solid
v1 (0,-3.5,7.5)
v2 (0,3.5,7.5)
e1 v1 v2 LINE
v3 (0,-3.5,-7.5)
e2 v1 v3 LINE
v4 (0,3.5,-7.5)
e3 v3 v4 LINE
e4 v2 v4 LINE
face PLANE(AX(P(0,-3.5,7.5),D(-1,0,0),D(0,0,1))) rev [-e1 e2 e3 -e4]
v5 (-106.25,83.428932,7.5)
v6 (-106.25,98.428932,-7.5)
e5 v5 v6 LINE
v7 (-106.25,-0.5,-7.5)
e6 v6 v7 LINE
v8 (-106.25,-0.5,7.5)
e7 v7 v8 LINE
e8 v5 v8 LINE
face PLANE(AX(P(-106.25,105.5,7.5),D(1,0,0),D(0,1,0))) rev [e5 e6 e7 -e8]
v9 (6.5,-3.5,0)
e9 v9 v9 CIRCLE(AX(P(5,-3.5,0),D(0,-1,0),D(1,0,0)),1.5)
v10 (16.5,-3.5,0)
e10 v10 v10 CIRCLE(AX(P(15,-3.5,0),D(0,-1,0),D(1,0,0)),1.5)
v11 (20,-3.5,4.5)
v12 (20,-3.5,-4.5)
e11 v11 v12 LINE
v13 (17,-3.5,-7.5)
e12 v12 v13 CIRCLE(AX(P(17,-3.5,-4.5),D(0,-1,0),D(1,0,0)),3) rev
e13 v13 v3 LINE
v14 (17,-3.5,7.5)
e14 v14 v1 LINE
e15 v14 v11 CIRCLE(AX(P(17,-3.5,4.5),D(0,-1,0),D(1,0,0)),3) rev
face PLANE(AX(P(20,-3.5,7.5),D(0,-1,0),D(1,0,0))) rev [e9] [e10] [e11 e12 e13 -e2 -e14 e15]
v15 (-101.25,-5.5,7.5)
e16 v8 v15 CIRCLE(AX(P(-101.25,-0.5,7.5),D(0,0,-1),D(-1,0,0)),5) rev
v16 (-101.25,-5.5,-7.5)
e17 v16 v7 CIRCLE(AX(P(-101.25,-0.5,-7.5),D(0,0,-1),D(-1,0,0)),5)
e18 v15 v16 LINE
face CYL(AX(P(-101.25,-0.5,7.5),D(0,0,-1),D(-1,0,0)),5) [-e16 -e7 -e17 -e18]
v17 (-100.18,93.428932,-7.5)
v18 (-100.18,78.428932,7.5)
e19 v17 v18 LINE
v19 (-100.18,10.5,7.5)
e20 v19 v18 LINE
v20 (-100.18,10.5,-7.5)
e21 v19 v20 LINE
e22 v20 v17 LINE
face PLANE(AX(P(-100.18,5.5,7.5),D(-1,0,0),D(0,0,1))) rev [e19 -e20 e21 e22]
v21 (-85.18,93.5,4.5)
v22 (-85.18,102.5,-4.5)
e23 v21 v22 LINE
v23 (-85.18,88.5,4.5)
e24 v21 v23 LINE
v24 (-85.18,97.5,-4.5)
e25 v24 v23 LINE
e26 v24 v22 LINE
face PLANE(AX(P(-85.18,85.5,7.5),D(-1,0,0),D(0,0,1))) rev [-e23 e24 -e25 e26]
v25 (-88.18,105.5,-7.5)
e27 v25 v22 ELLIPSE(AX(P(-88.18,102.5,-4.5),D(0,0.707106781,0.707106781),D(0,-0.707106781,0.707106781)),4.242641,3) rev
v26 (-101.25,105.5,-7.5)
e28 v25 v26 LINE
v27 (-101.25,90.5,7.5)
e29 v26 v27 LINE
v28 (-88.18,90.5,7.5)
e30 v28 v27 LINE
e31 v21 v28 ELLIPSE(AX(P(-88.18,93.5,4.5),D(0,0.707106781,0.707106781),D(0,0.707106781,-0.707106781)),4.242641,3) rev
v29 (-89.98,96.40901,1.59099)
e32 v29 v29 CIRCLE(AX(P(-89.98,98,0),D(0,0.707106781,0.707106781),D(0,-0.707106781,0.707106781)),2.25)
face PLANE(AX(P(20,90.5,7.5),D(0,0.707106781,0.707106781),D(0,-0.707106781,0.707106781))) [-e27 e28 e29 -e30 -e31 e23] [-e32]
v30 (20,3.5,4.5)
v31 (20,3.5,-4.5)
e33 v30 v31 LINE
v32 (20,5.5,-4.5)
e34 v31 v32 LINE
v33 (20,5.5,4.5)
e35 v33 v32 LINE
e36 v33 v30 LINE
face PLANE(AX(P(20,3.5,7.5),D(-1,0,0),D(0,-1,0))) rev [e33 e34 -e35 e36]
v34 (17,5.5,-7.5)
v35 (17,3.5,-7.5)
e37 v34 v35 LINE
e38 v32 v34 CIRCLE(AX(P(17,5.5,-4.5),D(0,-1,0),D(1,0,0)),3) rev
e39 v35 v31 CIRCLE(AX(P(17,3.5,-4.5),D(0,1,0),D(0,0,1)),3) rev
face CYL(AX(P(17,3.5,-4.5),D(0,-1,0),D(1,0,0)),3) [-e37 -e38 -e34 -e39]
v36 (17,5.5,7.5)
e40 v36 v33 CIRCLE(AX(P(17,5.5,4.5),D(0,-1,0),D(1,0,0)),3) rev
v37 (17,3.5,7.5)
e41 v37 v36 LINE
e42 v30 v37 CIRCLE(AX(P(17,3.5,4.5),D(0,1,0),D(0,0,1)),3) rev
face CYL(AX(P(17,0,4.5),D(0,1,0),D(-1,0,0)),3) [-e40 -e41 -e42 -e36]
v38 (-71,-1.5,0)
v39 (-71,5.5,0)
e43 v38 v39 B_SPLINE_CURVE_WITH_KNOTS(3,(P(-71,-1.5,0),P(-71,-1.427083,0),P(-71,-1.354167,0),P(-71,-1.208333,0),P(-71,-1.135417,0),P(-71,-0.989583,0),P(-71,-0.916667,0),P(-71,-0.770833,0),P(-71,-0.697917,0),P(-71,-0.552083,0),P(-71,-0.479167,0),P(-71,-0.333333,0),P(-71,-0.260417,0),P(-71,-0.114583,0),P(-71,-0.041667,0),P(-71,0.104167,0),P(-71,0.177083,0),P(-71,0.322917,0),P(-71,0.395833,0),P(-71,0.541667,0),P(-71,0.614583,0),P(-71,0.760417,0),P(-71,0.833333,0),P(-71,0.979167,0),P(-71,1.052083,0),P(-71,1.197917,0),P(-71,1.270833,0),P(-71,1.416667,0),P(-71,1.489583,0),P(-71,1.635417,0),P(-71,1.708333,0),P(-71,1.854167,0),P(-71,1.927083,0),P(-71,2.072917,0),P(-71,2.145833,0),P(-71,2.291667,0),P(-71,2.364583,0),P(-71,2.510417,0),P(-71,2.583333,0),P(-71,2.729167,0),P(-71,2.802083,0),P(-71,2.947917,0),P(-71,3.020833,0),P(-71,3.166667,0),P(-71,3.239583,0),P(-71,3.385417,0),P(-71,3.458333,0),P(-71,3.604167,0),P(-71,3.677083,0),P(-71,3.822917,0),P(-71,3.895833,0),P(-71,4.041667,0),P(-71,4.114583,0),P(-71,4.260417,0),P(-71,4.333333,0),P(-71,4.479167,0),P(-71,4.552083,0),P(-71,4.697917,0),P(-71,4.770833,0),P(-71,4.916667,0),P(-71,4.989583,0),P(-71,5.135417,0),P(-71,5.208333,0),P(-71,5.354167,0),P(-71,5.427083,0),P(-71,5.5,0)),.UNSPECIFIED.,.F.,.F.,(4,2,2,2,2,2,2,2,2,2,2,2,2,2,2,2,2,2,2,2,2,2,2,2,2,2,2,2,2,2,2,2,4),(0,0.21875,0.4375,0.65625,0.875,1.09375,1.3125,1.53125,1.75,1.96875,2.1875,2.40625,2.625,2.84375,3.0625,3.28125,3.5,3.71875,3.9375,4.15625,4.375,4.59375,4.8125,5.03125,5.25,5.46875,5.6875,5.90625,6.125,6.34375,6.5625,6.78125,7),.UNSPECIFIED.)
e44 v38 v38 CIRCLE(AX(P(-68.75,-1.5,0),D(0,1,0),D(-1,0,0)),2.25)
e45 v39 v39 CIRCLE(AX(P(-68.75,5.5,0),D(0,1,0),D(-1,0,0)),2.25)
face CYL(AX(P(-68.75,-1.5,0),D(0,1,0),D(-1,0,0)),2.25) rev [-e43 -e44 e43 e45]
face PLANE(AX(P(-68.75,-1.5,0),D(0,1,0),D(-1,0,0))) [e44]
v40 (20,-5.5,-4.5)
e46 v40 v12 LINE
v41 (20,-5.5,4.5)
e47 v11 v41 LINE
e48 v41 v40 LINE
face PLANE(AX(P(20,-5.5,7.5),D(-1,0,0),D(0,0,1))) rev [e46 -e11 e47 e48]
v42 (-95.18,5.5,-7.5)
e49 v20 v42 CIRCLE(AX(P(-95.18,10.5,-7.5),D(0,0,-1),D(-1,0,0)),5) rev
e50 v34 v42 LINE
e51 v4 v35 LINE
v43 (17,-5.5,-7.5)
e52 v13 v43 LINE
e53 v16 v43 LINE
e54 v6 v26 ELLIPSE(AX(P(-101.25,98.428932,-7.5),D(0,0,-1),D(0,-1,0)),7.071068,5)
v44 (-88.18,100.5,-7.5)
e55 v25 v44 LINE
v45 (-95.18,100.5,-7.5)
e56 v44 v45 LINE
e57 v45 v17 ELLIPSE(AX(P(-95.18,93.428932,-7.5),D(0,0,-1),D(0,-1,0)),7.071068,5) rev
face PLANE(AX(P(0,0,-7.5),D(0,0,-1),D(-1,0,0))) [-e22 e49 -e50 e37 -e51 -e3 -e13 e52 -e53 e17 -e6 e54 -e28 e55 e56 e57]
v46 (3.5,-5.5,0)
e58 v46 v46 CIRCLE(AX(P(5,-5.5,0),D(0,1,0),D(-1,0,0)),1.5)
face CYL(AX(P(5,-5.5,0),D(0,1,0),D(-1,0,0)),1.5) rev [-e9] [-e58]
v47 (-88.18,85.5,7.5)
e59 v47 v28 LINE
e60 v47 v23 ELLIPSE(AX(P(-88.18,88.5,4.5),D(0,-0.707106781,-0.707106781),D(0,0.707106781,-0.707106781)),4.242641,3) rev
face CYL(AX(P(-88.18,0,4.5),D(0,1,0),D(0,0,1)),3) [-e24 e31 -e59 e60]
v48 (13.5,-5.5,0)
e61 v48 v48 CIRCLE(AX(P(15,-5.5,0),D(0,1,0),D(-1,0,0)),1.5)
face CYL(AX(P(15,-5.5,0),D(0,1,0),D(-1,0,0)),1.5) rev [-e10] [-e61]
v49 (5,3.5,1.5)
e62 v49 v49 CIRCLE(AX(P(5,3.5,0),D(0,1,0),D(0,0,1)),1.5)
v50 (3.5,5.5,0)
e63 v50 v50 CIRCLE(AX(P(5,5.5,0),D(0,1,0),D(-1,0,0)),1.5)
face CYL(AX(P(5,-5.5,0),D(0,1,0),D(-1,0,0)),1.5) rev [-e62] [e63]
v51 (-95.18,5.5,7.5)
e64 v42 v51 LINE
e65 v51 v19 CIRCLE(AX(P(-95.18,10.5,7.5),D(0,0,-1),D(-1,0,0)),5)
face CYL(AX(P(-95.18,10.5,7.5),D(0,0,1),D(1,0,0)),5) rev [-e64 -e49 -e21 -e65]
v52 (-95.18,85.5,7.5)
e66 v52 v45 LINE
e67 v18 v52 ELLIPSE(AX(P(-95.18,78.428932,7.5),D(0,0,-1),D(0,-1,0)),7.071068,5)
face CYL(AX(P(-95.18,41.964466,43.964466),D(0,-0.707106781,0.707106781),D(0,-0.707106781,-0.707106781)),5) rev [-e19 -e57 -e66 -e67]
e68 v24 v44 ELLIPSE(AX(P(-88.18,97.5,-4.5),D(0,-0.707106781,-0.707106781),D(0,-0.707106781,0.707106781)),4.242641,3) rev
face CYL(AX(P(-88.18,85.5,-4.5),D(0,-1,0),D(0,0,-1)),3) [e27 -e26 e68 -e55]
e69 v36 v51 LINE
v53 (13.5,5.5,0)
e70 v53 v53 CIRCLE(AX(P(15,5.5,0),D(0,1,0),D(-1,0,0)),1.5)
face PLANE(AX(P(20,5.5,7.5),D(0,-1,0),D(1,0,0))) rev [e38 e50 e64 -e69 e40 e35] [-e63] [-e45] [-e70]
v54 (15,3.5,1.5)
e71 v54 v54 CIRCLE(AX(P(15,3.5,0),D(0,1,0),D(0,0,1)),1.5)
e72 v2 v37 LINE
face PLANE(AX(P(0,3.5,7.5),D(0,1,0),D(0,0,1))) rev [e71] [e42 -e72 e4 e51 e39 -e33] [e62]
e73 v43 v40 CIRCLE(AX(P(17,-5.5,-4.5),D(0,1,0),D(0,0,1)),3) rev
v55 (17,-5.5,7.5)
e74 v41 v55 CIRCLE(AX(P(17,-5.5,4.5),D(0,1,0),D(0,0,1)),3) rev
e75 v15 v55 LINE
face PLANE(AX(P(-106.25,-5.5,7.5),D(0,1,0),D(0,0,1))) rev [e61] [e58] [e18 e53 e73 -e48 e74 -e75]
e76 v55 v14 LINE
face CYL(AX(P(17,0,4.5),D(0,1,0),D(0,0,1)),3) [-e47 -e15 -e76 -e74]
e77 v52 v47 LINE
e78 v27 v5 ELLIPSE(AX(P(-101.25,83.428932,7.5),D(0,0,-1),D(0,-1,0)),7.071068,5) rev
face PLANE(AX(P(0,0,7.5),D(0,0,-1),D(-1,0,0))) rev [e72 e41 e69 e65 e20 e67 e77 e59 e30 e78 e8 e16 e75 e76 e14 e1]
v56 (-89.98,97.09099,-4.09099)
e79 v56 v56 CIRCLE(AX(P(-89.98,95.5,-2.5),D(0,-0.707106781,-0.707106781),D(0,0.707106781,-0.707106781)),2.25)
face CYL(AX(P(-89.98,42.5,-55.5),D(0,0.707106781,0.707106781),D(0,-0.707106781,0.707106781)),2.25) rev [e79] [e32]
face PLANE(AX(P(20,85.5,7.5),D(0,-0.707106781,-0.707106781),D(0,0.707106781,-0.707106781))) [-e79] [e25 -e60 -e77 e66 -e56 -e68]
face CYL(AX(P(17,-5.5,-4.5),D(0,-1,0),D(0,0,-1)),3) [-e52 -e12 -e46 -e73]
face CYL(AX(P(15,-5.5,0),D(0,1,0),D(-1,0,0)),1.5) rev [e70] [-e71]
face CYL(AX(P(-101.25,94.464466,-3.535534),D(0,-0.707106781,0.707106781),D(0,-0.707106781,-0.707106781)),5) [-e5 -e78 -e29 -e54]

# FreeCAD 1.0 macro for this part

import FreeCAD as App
import Part
import Sketcher


def edges_at(feature, points):
    """Names of the edges that pass closest to the given points."""
    edges = feature.Shape.Edges
    near = lambda p: min(range(len(edges)), key=lambda i: edges[i].distToShape(Part.Vertex(*p))[0])
    return sorted({f"Edge{near(p) + 1}" for p in points})

doc = App.newDocument("Part")
body = doc.addObject("PartDesign::Body", "Body")

sketch1 = body.newObject("Sketcher::SketchObject", "Sketch")
sketch1.AttachmentSupport = (doc.getObject("XY_Plane"), [""])
sketch1.MapMode = "FlatFace"
sketch1.addGeometry(Part.LineSegment(App.Vector(0, -3.5, 0), App.Vector(0, 3.5, 0)), False)
sketch1.addGeometry(Part.LineSegment(App.Vector(0, 3.5, 0), App.Vector(20, 3.5, 0)), False)
sketch1.addGeometry(Part.LineSegment(App.Vector(20, 3.5, 0), App.Vector(20, 5.5, 0)), False)
sketch1.addGeometry(Part.LineSegment(App.Vector(20, 5.5, 0), App.Vector(-100.2, 5.5, 0)), False)
sketch1.addGeometry(Part.LineSegment(App.Vector(-100.2, 5.5, 0), App.Vector(-100.2, 85.5, 0)), False)
sketch1.addGeometry(Part.LineSegment(App.Vector(-100.2, 85.5, 0), App.Vector(-85.2, 85.5, 0)), False)
sketch1.addGeometry(Part.LineSegment(App.Vector(-85.2, 85.5, 0), App.Vector(-85.2, 105.5, 0)), False)
sketch1.addGeometry(Part.LineSegment(App.Vector(-85.2, 105.5, 0), App.Vector(-106.2, 105.5, 0)), False)
sketch1.addGeometry(Part.LineSegment(App.Vector(-106.2, 105.5, 0), App.Vector(-106.2, -5.5, 0)), False)
sketch1.addGeometry(Part.LineSegment(App.Vector(-106.2, -5.5, 0), App.Vector(20, -5.5, 0)), False)
sketch1.addGeometry(Part.LineSegment(App.Vector(20, -5.5, 0), App.Vector(20, -3.5, 0)), False)
sketch1.addGeometry(Part.LineSegment(App.Vector(20, -3.5, 0), App.Vector(0, -3.5, 0)), False)
sketch1.addConstraint(Sketcher.Constraint("Coincident", 0, 2, 1, 1))
sketch1.addConstraint(Sketcher.Constraint("Coincident", 1, 2, 2, 1))
sketch1.addConstraint(Sketcher.Constraint("Coincident", 2, 2, 3, 1))
sketch1.addConstraint(Sketcher.Constraint("Coincident", 3, 2, 4, 1))
sketch1.addConstraint(Sketcher.Constraint("Coincident", 4, 2, 5, 1))
sketch1.addConstraint(Sketcher.Constraint("Coincident", 5, 2, 6, 1))
sketch1.addConstraint(Sketcher.Constraint("Coincident", 6, 2, 7, 1))
sketch1.addConstraint(Sketcher.Constraint("Coincident", 7, 2, 8, 1))
sketch1.addConstraint(Sketcher.Constraint("Coincident", 8, 2, 9, 1))
sketch1.addConstraint(Sketcher.Constraint("Coincident", 9, 2, 10, 1))
sketch1.addConstraint(Sketcher.Constraint("Coincident", 10, 2, 11, 1))
sketch1.addConstraint(Sketcher.Constraint("Coincident", 11, 2, 0, 1))
sketch1.addConstraint(Sketcher.Constraint("Vertical", 0))
sketch1.addConstraint(Sketcher.Constraint("Horizontal", 1))
sketch1.addConstraint(Sketcher.Constraint("Vertical", 2))
sketch1.addConstraint(Sketcher.Constraint("Horizontal", 3))
sketch1.addConstraint(Sketcher.Constraint("Vertical", 4))
sketch1.addConstraint(Sketcher.Constraint("Horizontal", 5))
sketch1.addConstraint(Sketcher.Constraint("Vertical", 6))
sketch1.addConstraint(Sketcher.Constraint("Horizontal", 7))
sketch1.addConstraint(Sketcher.Constraint("Vertical", 8))
sketch1.addConstraint(Sketcher.Constraint("Horizontal", 9))
sketch1.addConstraint(Sketcher.Constraint("Vertical", 10))
sketch1.addConstraint(Sketcher.Constraint("Horizontal", 11))
sketch1.addConstraint(Sketcher.Constraint("Symmetric", 0, 2, 11, 2, -1, 1))
sketch1.addConstraint(Sketcher.Constraint("Symmetric", 2, 2, 9, 2, -1))
sketch1.addConstraint(Sketcher.Constraint("Equal", 11, 6))
sketch1.addConstraint(Sketcher.Constraint("DistanceX", 1, 1, 1, 2, 20.0))
sketch1.addConstraint(Sketcher.Constraint("DistanceX", 5, 1, 5, 2, 15.0))
sketch1.addConstraint(Sketcher.Constraint("DistanceY", 0, 1, 0, 2, 7.0))
sketch1.addConstraint(Sketcher.Constraint("DistanceY", 2, 1, 2, 2, 2.0))
sketch1.addConstraint(Sketcher.Constraint("DistanceY", 4, 1, 4, 2, 80.0))
sketch1.addConstraint(Sketcher.Constraint("DistanceX", 3, 2, 3, 1, 120.18))
sketch1.addConstraint(Sketcher.Constraint("DistanceX", 7, 2, 7, 1, 21.07))
pad1 = body.newObject("PartDesign::Pad", "Pad")
pad1.Profile = sketch1
pad1.Length = 15
pad1.Midplane = True

sketch2 = body.newObject("Sketcher::SketchObject", "Sketch001")
sketch2.AttachmentSupport = (doc.getObject("XZ_Plane"), [""])
sketch2.MapMode = "FlatFace"
sketch2.AttachmentOffset = App.Placement(App.Vector(0, 0, -5.5), App.Rotation())
sketch2.addGeometry(Part.Circle(App.Vector(15, 0, 0), App.Vector(0, 0, 1), 1.5), False)
sketch2.addGeometry(Part.Circle(App.Vector(5, 0, 0), App.Vector(0, 0, 1), 1.5), False)
sketch2.addConstraint(Sketcher.Constraint("Equal", 0, 1))
sketch2.addConstraint(Sketcher.Constraint("PointOnObject", 0, 3, -1))
sketch2.addConstraint(Sketcher.Constraint("PointOnObject", 1, 3, -1))
sketch2.addConstraint(Sketcher.Constraint("Diameter", 0, 3.0))
sketch2.addConstraint(Sketcher.Constraint("DistanceX", -1, 1, 0, 3, 15.0))
sketch2.addConstraint(Sketcher.Constraint("DistanceX", -1, 1, 1, 3, 5.0))
pocket1 = body.newObject("PartDesign::Pocket", "Pocket")
pocket1.Profile = sketch2
pocket1.Type = "ThroughAll"
pocket1.Reversed = True
doc.recompute()

fillet = body.newObject("PartDesign::Fillet", "Fillet")
fillet.Base = (pocket1, edges_at(pocket1, [
    (20, -4.5, -7.5),
    (20, 4.5, -7.5),
    (20, 4.5, 7.5),
    (20, -4.5, 7.5),
]))
fillet.Radius = 3
doc.recompute()

fillet2 = body.newObject("PartDesign::Fillet", "Fillet001")
fillet2.Base = (fillet, edges_at(fillet, [(-85.18, 95.5, -7.5), (-85.18, 95.5, 7.5)]))
fillet2.Radius = 3

sketch3 = body.newObject("Sketcher::SketchObject", "Sketch002")
sketch3.AttachmentSupport = (doc.getObject("YZ_Plane"), [""])
sketch3.MapMode = "FlatFace"
sketch3.AttachmentOffset = App.Placement(App.Vector(0, 0, -100.18), App.Rotation())
sketch3.addGeometry(Part.LineSegment(App.Vector(90, 8, 0), App.Vector(106, -8, 0)), False)
sketch3.addGeometry(Part.LineSegment(App.Vector(106, -8, 0), App.Vector(106, 8, 0)), False)
sketch3.addGeometry(Part.LineSegment(App.Vector(106, 8, 0), App.Vector(90, 8, 0)), False)
sketch3.addGeometry(Part.LineSegment(App.Vector(100, -8, 0), App.Vector(86, 8, 0)), False)
sketch3.addGeometry(Part.LineSegment(App.Vector(86, 8, 0), App.Vector(86, -8, 0)), False)
sketch3.addGeometry(Part.LineSegment(App.Vector(86, -8, 0), App.Vector(100, -8, 0)), False)
sketch3.addConstraint(Sketcher.Constraint("Coincident", 0, 2, 1, 1))
sketch3.addConstraint(Sketcher.Constraint("Coincident", 1, 2, 2, 1))
sketch3.addConstraint(Sketcher.Constraint("Coincident", 2, 2, 0, 1))
sketch3.addConstraint(Sketcher.Constraint("Coincident", 3, 2, 4, 1))
sketch3.addConstraint(Sketcher.Constraint("Coincident", 4, 2, 5, 1))
sketch3.addConstraint(Sketcher.Constraint("Coincident", 5, 2, 3, 1))
sketch3.addConstraint(Sketcher.Constraint("Vertical", 1))
sketch3.addConstraint(Sketcher.Constraint("Horizontal", 2))
sketch3.addConstraint(Sketcher.Constraint("Vertical", 4))
sketch3.addConstraint(Sketcher.Constraint("Horizontal", 5))
sketch3.addConstraint(Sketcher.Constraint("Parallel", 0, 3))
sketch3.addConstraint(Sketcher.Constraint("Horizontal", 2, 2, 3, 2))
sketch3.addConstraint(Sketcher.Constraint("Horizontal", 0, 2, 4, 2))
sketch3.addConstraint(Sketcher.Constraint("Equal", 5, 1))
sketch3.addConstraint(Sketcher.Constraint("DistanceX", 2, 2, 2, 1, 15.0))
sketch3.addConstraint(Sketcher.Constraint("DistanceX", 3, 2, 2, 2, 5.0))
sketch3.addConstraint(Sketcher.Constraint("DistanceX", -1, 1, 0, 2, 105.5))
sketch3.addConstraint(Sketcher.Constraint("DistanceY", 0, 2, -1, 1, 7.5))
pocket2 = body.newObject("PartDesign::Pocket", "Pocket001")
pocket2.Profile = sketch3
pocket2.Type = "ThroughAll"
pocket2.Reversed = True

sketch4 = body.newObject("Sketcher::SketchObject", "Sketch003")
sketch4.Placement = App.Placement(App.Vector(0, 49, 49), App.Rotation(App.Vector(1, 0, 0), App.Vector(0, 0.707106781, -0.707106781), App.Vector(0, 0.707106781, 0.707106781), "ZXY"))
sketch4.addGeometry(Part.Circle(App.Vector(-90, 69.3, 0), App.Vector(0, 0, 1), 2.2), False)
sketch4.addConstraint(Sketcher.Constraint("Diameter", 0, 4.5))
sketch4.addConstraint(Sketcher.Constraint("DistanceX", 0, 3, -1, 1, 89.98))
sketch4.addConstraint(Sketcher.Constraint("DistanceY", -1, 1, 0, 3, 69.296465))
pocket3 = body.newObject("PartDesign::Pocket", "Pocket002")
pocket3.Profile = sketch4
pocket3.Type = "ThroughAll"

sketch5 = body.newObject("Sketcher::SketchObject", "Sketch004")
sketch5.AttachmentSupport = (doc.getObject("YZ_Plane"), [""])
sketch5.MapMode = "FlatFace"
sketch5.AttachmentOffset = App.Placement(App.Vector(0, 0, -100.18), App.Rotation())
sketch5.addGeometry(Part.LineSegment(App.Vector(106, 8, 0), App.Vector(90, 8, 0)), False)
sketch5.addGeometry(Part.LineSegment(App.Vector(90, 8, 0), App.Vector(106, -8, 0)), False)
sketch5.addGeometry(Part.LineSegment(App.Vector(106, -8, 0), App.Vector(106, 8, 0)), False)
sketch5.addConstraint(Sketcher.Constraint("Coincident", 0, 2, 1, 1))
sketch5.addConstraint(Sketcher.Constraint("Coincident", 1, 2, 2, 1))
sketch5.addConstraint(Sketcher.Constraint("Coincident", 2, 2, 0, 1))
sketch5.addConstraint(Sketcher.Constraint("Horizontal", 0))
sketch5.addConstraint(Sketcher.Constraint("Vertical", 2))
sketch5.addConstraint(Sketcher.Constraint("Equal", 0, 2))
sketch5.addConstraint(Sketcher.Constraint("DistanceX", 0, 2, 0, 1, 15.0))
sketch5.addConstraint(Sketcher.Constraint("DistanceX", -1, 1, 0, 2, 90.5))
sketch5.addConstraint(Sketcher.Constraint("DistanceY", -1, 1, 0, 2, 7.5))
pocket4 = body.newObject("PartDesign::Pocket", "Pocket003")
pocket4.Profile = sketch5
pocket4.Type = "ThroughAll"

sketch6 = body.newObject("Sketcher::SketchObject", "Sketch005")
sketch6.AttachmentSupport = (doc.getObject("XZ_Plane"), [""])
sketch6.MapMode = "FlatFace"
sketch6.AttachmentOffset = App.Placement(App.Vector(0, 0, -5.5), App.Rotation())
sketch6.addGeometry(Part.Circle(App.Vector(-68.8, 0, 0), App.Vector(0, 0, 1), 2.2), False)
sketch6.addConstraint(Sketcher.Constraint("PointOnObject", 0, 3, -1))
sketch6.addConstraint(Sketcher.Constraint("Diameter", 0, 4.5))
sketch6.addConstraint(Sketcher.Constraint("DistanceX", 0, 3, -1, 1, 68.75))
pocket5 = body.newObject("PartDesign::Pocket", "Pocket004")
pocket5.Profile = sketch6
pocket5.Length = 7
pocket5.Reversed = True
doc.recompute()

fillet3 = body.newObject("PartDesign::Fillet", "Fillet002")
fillet3.Base = (pocket5, edges_at(pocket5, [
    (-100.18, 93, 0),
    (-106.25, 98, 0),
    (-106.25, -5.5, 0),
    (-100.18, 5.5, 0),
]))
fillet3.Radius = 5

doc.recompute()
